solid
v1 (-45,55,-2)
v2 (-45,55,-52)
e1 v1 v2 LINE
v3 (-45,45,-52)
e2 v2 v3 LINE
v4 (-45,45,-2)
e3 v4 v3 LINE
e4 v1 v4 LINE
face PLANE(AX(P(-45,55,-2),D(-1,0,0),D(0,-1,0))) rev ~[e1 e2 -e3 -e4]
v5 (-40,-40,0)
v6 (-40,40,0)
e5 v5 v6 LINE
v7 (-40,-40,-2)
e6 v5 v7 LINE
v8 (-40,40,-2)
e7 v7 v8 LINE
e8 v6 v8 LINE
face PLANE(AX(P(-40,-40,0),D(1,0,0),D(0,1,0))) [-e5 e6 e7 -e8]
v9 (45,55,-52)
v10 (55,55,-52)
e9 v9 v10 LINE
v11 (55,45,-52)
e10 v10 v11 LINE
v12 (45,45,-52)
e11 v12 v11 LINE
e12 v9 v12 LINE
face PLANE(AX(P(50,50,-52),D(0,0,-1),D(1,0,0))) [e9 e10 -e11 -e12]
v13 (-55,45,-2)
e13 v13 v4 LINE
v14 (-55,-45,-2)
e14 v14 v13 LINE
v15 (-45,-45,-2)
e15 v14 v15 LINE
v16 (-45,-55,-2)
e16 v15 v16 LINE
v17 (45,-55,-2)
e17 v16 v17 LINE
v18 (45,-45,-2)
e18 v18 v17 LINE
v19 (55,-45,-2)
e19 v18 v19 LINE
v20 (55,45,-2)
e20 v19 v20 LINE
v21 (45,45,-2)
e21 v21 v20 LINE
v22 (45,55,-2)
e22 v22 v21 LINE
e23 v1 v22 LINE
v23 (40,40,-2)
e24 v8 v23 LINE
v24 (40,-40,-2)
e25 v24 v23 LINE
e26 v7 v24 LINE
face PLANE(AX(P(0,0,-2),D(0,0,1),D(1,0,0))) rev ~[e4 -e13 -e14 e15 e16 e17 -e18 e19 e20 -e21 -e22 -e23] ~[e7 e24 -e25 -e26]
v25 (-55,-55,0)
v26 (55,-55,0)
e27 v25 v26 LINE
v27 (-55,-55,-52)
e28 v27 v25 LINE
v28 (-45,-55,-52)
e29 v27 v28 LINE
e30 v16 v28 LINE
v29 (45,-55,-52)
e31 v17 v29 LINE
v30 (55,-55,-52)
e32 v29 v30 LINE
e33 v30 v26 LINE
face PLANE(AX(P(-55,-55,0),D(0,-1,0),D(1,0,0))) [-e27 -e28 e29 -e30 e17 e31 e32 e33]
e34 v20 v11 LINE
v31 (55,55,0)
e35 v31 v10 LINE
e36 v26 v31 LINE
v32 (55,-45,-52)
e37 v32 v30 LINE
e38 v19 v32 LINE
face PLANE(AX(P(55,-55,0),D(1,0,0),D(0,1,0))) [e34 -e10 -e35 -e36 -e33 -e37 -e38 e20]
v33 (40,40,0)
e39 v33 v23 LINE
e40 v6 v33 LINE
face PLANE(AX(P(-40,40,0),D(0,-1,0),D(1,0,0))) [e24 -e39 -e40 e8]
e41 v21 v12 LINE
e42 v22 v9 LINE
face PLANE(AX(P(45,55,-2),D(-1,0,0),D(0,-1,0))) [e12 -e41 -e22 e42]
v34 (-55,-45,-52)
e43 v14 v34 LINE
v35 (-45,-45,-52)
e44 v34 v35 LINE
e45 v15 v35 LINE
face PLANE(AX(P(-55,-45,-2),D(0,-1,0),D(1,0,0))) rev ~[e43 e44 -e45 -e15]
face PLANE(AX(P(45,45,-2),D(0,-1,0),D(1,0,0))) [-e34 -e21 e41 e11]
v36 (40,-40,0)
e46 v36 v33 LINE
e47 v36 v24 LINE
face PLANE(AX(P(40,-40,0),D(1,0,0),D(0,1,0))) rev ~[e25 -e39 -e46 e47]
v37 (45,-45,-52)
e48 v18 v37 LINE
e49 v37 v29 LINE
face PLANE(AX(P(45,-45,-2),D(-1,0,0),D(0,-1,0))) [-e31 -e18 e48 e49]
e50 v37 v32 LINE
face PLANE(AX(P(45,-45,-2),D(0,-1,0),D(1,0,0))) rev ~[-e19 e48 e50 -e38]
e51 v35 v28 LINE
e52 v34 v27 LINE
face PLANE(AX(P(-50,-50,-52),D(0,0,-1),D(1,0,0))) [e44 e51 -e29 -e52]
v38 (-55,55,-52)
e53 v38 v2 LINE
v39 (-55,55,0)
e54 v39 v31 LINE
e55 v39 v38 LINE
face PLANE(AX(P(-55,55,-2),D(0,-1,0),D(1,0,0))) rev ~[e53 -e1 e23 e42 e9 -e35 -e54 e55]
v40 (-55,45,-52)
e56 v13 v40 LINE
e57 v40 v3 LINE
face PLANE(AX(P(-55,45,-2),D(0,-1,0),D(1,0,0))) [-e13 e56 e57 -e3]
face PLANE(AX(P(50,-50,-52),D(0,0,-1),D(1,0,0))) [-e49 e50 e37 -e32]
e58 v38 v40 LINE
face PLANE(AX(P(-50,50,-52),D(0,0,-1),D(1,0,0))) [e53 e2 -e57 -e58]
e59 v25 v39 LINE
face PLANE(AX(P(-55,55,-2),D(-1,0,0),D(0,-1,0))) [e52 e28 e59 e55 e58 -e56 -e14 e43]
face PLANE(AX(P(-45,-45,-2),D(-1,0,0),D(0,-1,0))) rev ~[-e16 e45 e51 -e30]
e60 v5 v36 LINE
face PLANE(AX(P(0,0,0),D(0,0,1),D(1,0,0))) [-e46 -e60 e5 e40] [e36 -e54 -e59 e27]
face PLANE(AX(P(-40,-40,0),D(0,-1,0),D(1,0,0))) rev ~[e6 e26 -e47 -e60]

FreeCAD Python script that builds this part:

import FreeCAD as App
import Part
import Sketcher

V = App.Vector


def add_polygon(sketch, points):
    """Adds a closed chain of lines whose ends are joined by coincident constraints."""
    first, n = sketch.GeometryCount, len(points)
    for a, b in zip(points, points[1:] + points[:1]):
        sketch.addGeometry(Part.LineSegment(App.Vector(*a, 0), App.Vector(*b, 0)), False)
    for i in range(n):
        sketch.addConstraint(Sketcher.Constraint("Coincident", first + i, 2, first + (i + 1) % n, 1))

doc = App.newDocument("Part")
params = doc.addObject("Spreadsheet::Sheet", "Params")
for row, (alias, value) in enumerate([
    ("sketch1_width", "110 mm"),
    ("pad1_length", "2 mm"),
    ("sketch2_width", "10 mm"),
    ("pad2_length", "50 mm"),
    ("sketch3_width", "80 mm"),
], start=1):
    params.set(f"A{row}", alias)
    params.set(f"B{row}", "=" + value)
    params.setAlias(f"B{row}", alias)

body = doc.addObject("PartDesign::Body", "Body")

sketch1 = body.newObject("Sketcher::SketchObject", "Sketch")
sketch1.AttachmentSupport = (doc.getObject("XY_Plane"), [""])
sketch1.MapMode = "FlatFace"
add_polygon(sketch1, [(-55, 55), (-55, -55), (55, -55), (55, 55)])
sketch1.addConstraint([
    Sketcher.Constraint("Vertical", 0),
    Sketcher.Constraint("Horizontal", 1),
    Sketcher.Constraint("Vertical", 2),
    Sketcher.Constraint("Horizontal", 3),
    Sketcher.Constraint("Symmetric", 0, 2, 2, 2, -1, 1),
    Sketcher.Constraint("Equal", 3, 0),
    Sketcher.Constraint("DistanceX", 1, 1, 1, 2, 110.0),
])
sketch1.setExpression("Constraints[10]", "Params.sketch1_width")
pad1 = body.newObject("PartDesign::Pad", "Pad")
pad1.Profile = sketch1
pad1.setExpression("Length", "Params.pad1_length")
pad1.Reversed = True

sketch2 = body.newObject("Sketcher::SketchObject", "Sketch001")
sketch2.AttachmentSupport = (doc.getObject("XY_Plane"), [""])
sketch2.MapMode = "FlatFace"
sketch2.AttachmentOffset = App.Placement(V(0, 0, -2), App.Rotation())
add_polygon(sketch2, [(-55, 45), (-55, 55), (-45, 55), (-45, 45)])
add_polygon(sketch2, [(-55, -55), (-55, -45), (-45, -45), (-45, -55)])
add_polygon(sketch2, [(45, -55), (45, -45), (55, -45), (55, -55)])
add_polygon(sketch2, [(45, 45), (45, 55), (55, 55), (55, 45)])
sketch2.addConstraint([
    Sketcher.Constraint("Vertical", 0),
    Sketcher.Constraint("Horizontal", 1),
    Sketcher.Constraint("Vertical", 2),
    Sketcher.Constraint("Horizontal", 3),
    Sketcher.Constraint("Vertical", 4),
    Sketcher.Constraint("Horizontal", 5),
    Sketcher.Constraint("Vertical", 6),
    Sketcher.Constraint("Horizontal", 7),
    Sketcher.Constraint("Vertical", 8),
    Sketcher.Constraint("Horizontal", 9),
    Sketcher.Constraint("Vertical", 10),
    Sketcher.Constraint("Horizontal", 11),
    Sketcher.Constraint("Vertical", 12),
    Sketcher.Constraint("Horizontal", 13),
    Sketcher.Constraint("Vertical", 14),
    Sketcher.Constraint("Horizontal", 15),
    Sketcher.Constraint("Symmetric", 2, 2, 8, 2, -1, 1),
    Sketcher.Constraint("Symmetric", 0, 2, 10, 2, -1, 1),
    Sketcher.Constraint("Symmetric", 6, 2, 12, 2, -1, 1),
    Sketcher.Constraint("Symmetric", 4, 2, 14, 2, -1, 1),
    Sketcher.Constraint("Symmetric", 5, 2, 8, 2, -2),
    Sketcher.Constraint("Symmetric", 7, 2, 10, 2, -2),
    Sketcher.Constraint("Equal", 15, 0),
    Sketcher.Constraint("DistanceX", 1, 1, 1, 2, 10.0),
    Sketcher.Constraint("DistanceX", 0, 2, -1, 1, 55.0),
    Sketcher.Constraint("DistanceY", -1, 1, 0, 2, 55.0),
])
sketch2.setExpression("Constraints[39]", "Params.sketch2_width")
pad2 = body.newObject("PartDesign::Pad", "Pad001")
pad2.Profile = sketch2
pad2.setExpression("Length", "Params.pad2_length")
pad2.Reversed = True

sketch3 = body.newObject("Sketcher::SketchObject", "Sketch002")
sketch3.AttachmentSupport = (doc.getObject("XY_Plane"), [""])
sketch3.MapMode = "FlatFace"
add_polygon(sketch3, [(-40, 40), (-40, -40), (40, -40), (40, 40)])
sketch3.addConstraint([
    Sketcher.Constraint("Vertical", 0),
    Sketcher.Constraint("Horizontal", 1),
    Sketcher.Constraint("Vertical", 2),
    Sketcher.Constraint("Horizontal", 3),
    Sketcher.Constraint("Symmetric", 0, 2, 2, 2, -1, 1),
    Sketcher.Constraint("Equal", 3, 0),
    Sketcher.Constraint("DistanceX", 1, 1, 1, 2, 80.0),
])
sketch3.setExpression("Constraints[10]", "Params.sketch3_width")
pocket1 = body.newObject("PartDesign::Pocket", "Pocket")
pocket1.Profile = sketch3
pocket1.Type = "ThroughAll"

doc.recompute()
